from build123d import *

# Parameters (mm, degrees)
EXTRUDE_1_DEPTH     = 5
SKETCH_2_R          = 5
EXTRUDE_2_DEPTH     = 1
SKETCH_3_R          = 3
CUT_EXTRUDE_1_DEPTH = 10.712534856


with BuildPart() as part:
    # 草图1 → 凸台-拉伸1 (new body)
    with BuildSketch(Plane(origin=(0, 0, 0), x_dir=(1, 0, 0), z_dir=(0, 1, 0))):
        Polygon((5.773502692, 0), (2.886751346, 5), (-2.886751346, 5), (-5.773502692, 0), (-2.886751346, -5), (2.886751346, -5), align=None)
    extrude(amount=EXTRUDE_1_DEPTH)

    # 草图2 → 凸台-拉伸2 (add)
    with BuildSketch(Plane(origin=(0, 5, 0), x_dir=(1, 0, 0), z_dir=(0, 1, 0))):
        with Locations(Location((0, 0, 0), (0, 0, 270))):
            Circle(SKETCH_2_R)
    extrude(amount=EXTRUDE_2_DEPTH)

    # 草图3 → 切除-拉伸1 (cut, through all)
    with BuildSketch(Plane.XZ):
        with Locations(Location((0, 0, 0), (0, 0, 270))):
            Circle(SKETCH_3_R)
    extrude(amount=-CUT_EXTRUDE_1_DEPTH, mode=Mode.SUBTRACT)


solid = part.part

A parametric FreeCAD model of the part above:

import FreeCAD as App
import Part
import Sketcher
Q = App.Units.Quantity


def add_polygon(sketch, points):
    """Adds a closed chain of lines whose ends are joined by coincident constraints."""
    first, n = sketch.GeometryCount, len(points)
    for a, b in zip(points, points[1:] + points[:1]):
        sketch.addGeometry(Part.LineSegment(App.Vector(*a, 0), App.Vector(*b, 0)), False)
    for i in range(n):
        sketch.addConstraint(Sketcher.Constraint("Coincident", first + i, 2, first + (i + 1) % n, 1))

doc = App.newDocument("Part")
body = doc.addObject("PartDesign::Body", "Body")

sketch1 = body.newObject("Sketcher::SketchObject", "Sketch")
sketch1.AttachmentSupport = (doc.getObject("XZ_Plane"), [""])
sketch1.MapMode = "FlatFace"
add_polygon(sketch1, [(5.773503, 0), (2.886751, -5), (-2.886751, -5), (-5.773503, 0), (-2.886751, 5), (2.886751, 5)])
sketch1.addConstraint(Sketcher.Constraint("Horizontal", 1))
sketch1.addConstraint(Sketcher.Constraint("Horizontal", 4))
sketch1.addConstraint(Sketcher.Constraint("Symmetric", 0, 2, 3, 2, -1, 1))
sketch1.addConstraint(Sketcher.Constraint("Symmetric", 2, 2, 5, 2, -1, 1))
sketch1.addConstraint(Sketcher.Constraint("PointOnObject", 2, 2, -1))
sketch1.addConstraint(Sketcher.Constraint("Parallel", 2, 5))
sketch1.addConstraint(Sketcher.Constraint("Vertical", 1, 2, 3, 2))
sketch1.addConstraint(Sketcher.Constraint("Angle", 0, Q("-120 deg")))
sketch1.addConstraint(Sketcher.Constraint("DistanceY", 0, 2, -1, 1, 5.0))
sketch1.addConstraint(Sketcher.Constraint("DistanceX", 1, 2, 1, 1, 5.773503))
pad1 = body.newObject("PartDesign::Pad", "Pad")
pad1.Profile = sketch1
pad1.Length = 5
pad1.Reversed = True

sketch2 = body.newObject("Sketcher::SketchObject", "Sketch001")
sketch2.AttachmentSupport = (doc.getObject("XZ_Plane"), [""])
sketch2.MapMode = "FlatFace"
sketch2.AttachmentOffset = App.Placement(App.Vector(0, 0, -5), App.Rotation())
sketch2.addGeometry(Part.Circle(App.Vector(0, 0, 0), App.Vector(0, 0, 1), 5), False)
sketch2.addConstraint(Sketcher.Constraint("Coincident", 0, 3, -1, 1))
sketch2.addConstraint(Sketcher.Constraint("Diameter", 0, 10.0))
pad2 = body.newObject("PartDesign::Pad", "Pad001")
pad2.Profile = sketch2
pad2.Length = 1
pad2.Reversed = True

sketch3 = body.newObject("Sketcher::SketchObject", "Sketch002")
sketch3.AttachmentSupport = (doc.getObject("XZ_Plane"), [""])
sketch3.MapMode = "FlatFace"
sketch3.addGeometry(Part.Circle(App.Vector(0, 0, 0), App.Vector(0, 0, 1), 3), False)
sketch3.addConstraint(Sketcher.Constraint("Coincident", 0, 3, -1, 1))
sketch3.addConstraint(Sketcher.Constraint("Diameter", 0, 6.0))
pocket1 = body.newObject("PartDesign::Pocket", "Pocket")
pocket1.Profile = sketch3
pocket1.Type = "ThroughAll"

doc.recompute()
